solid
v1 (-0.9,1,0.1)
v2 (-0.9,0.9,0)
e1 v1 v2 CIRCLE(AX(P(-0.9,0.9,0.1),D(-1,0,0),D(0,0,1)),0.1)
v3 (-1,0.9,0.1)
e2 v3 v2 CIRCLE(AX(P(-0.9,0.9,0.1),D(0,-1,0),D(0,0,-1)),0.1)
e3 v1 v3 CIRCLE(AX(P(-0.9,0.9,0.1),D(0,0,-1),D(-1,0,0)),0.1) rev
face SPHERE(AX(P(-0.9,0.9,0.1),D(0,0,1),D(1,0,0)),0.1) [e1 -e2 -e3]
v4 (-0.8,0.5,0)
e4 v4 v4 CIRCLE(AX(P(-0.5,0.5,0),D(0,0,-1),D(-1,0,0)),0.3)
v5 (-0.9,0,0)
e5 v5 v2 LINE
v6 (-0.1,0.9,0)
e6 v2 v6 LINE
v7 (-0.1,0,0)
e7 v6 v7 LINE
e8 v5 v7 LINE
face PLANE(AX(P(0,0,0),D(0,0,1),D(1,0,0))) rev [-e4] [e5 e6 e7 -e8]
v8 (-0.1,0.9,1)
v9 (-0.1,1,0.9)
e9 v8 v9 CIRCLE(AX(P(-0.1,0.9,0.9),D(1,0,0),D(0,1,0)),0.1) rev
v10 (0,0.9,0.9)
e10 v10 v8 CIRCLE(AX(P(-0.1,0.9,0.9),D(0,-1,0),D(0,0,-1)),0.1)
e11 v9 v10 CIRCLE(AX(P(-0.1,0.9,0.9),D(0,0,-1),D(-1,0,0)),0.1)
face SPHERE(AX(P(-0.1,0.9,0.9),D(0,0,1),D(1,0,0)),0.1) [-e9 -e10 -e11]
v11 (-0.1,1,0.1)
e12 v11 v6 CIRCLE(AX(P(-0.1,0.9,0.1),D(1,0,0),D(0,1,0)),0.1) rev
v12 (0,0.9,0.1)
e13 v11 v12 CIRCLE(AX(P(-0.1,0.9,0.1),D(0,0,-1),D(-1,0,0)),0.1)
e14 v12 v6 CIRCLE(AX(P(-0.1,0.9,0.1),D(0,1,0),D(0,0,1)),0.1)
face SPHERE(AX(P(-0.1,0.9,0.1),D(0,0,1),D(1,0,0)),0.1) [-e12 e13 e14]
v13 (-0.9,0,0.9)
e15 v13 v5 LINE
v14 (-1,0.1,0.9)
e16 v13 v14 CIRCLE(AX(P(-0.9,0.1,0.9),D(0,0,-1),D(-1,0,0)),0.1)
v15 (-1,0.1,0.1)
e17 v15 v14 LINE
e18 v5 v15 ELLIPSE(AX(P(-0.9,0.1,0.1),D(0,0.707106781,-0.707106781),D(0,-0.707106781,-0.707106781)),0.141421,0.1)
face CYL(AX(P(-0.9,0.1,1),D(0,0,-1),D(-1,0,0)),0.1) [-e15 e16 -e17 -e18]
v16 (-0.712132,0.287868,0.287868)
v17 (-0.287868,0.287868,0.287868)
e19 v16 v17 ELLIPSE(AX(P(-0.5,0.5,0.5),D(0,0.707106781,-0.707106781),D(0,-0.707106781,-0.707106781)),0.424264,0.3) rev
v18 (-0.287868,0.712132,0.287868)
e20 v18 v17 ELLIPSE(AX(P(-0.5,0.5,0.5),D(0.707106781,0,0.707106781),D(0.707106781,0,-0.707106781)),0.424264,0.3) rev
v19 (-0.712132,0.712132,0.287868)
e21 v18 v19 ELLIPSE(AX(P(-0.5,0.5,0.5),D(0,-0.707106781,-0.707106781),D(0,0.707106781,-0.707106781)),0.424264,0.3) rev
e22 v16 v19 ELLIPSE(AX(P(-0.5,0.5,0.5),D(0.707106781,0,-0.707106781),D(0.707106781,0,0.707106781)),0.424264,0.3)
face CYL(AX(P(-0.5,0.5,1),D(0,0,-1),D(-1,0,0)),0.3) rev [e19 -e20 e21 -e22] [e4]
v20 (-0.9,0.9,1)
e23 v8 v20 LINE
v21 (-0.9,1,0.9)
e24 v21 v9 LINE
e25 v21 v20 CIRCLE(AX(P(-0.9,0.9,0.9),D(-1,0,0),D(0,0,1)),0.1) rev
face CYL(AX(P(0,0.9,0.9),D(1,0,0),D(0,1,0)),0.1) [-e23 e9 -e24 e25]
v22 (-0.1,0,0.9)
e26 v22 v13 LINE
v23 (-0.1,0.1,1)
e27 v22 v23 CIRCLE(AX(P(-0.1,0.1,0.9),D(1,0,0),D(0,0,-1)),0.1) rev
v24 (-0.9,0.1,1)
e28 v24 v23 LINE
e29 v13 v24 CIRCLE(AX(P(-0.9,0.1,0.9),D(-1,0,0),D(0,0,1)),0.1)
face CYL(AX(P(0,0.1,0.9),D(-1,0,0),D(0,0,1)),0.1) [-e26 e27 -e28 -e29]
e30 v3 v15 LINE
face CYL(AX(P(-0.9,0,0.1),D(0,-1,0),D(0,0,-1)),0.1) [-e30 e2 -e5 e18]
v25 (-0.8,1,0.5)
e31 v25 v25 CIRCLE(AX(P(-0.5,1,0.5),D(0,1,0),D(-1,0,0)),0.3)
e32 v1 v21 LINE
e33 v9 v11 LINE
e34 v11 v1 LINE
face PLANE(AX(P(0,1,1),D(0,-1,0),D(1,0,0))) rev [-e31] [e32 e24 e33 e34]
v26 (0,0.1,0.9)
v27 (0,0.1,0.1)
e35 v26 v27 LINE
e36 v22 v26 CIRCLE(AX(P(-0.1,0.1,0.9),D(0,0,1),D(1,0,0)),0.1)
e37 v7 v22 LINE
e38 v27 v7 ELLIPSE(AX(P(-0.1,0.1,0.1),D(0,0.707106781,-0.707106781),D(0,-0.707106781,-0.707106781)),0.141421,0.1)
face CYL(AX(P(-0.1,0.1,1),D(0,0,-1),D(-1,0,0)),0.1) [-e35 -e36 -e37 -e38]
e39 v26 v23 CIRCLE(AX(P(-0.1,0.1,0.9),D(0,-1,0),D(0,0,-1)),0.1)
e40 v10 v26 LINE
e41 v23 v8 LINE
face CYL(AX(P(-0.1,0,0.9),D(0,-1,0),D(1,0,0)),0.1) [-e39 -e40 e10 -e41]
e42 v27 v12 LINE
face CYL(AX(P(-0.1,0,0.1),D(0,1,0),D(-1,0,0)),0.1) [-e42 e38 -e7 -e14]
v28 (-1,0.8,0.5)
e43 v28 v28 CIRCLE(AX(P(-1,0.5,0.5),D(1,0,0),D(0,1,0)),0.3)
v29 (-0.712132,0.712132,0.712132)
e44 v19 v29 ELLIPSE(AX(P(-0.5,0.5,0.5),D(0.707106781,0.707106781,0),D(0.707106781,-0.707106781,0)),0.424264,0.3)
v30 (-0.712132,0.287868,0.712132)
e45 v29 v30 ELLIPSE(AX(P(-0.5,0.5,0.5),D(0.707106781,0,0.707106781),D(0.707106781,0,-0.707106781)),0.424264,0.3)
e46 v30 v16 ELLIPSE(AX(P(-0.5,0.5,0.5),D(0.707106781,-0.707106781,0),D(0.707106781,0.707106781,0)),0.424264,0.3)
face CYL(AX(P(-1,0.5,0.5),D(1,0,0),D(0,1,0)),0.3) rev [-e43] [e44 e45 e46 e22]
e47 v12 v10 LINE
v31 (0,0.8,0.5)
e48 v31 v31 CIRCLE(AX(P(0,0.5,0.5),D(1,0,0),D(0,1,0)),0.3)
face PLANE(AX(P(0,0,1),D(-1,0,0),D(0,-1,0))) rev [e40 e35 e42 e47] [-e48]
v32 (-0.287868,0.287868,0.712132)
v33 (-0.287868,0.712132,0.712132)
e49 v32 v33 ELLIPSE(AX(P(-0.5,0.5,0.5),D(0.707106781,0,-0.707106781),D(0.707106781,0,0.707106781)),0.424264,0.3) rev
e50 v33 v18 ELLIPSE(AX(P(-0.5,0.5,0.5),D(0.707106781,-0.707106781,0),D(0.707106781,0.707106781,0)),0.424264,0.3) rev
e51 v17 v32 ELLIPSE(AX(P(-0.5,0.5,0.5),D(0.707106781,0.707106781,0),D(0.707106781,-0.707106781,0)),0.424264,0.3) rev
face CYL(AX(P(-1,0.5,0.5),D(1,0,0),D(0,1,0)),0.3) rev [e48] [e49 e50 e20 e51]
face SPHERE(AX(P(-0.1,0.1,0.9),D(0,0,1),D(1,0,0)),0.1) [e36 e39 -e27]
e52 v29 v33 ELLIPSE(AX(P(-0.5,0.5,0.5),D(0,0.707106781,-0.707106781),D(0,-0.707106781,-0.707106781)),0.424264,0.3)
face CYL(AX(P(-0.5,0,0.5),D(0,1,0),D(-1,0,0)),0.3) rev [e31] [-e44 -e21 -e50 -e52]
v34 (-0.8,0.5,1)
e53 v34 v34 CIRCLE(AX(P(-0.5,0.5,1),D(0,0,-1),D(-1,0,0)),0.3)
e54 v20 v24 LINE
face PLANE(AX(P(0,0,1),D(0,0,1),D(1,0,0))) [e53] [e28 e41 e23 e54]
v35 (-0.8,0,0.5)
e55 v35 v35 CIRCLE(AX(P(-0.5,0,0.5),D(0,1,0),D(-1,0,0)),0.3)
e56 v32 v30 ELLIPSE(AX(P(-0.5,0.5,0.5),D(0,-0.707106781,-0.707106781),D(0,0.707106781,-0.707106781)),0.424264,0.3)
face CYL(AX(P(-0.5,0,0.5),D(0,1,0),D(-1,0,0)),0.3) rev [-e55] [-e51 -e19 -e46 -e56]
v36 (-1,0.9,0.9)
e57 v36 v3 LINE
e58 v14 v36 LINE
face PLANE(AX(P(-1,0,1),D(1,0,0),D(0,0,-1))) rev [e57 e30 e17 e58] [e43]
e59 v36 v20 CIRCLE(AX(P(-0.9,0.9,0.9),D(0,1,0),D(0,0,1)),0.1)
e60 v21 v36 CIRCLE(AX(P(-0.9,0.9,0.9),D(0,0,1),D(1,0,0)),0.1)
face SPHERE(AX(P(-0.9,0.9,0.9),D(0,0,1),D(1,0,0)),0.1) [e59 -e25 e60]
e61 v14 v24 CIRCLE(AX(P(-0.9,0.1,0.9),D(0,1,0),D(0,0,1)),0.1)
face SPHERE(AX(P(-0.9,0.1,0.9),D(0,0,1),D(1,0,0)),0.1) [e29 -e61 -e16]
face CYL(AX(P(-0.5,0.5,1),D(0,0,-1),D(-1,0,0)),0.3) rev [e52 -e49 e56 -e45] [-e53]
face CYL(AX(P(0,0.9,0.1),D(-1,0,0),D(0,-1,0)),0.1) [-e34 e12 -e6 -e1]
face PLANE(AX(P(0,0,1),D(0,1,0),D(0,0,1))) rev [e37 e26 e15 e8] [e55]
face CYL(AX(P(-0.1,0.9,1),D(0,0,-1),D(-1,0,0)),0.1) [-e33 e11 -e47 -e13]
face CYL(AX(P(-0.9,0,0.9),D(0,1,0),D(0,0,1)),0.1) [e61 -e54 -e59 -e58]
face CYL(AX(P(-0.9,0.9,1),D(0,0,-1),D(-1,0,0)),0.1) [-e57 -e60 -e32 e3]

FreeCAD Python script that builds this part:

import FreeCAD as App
import Part
import Sketcher

V = App.Vector


def edges_at(feature, points):
    """Names of the edges that pass closest to the given points."""
    edges = feature.Shape.Edges
    near = lambda p: min(range(len(edges)), key=lambda i: edges[i].distToShape(Part.Vertex(*p))[0])
    return sorted({f"Edge{near(p) + 1}" for p in points})

doc = App.newDocument("Part")
params = doc.addObject("Spreadsheet::Sheet", "Params")
for row, (alias, value) in enumerate([
    ("sketch1_width", "1 mm"),
    ("pad1_length", "1 mm"),
    ("sketch2_diameter", "0.6 mm"),
    ("pocket1_length", "1 mm"),
    ("sketch3_diameter", "0.6 mm"),
    ("pocket2_length", "1 mm"),
    ("sketch4_diameter", "0.6 mm"),
    ("pocket3_length", "1 mm"),
    ("fillet_radius", "0.1 mm"),
    ("fillet2_radius", "0.1 mm"),
], start=1):
    params.set(f"A{row}", alias)
    params.set(f"B{row}", "=" + value)
    params.setAlias(f"B{row}", alias)

body = doc.addObject("PartDesign::Body", "Body")

# Sketch on XY plane
sketch1 = body.newObject("Sketcher::SketchObject", "Sketch")
sketch1.AttachmentSupport = (doc.getObject("XY_Plane"), [""])
sketch1.MapMode = "FlatFace"
sketch1.addGeometry([
    Part.LineSegment(V(-1, 1, 0), V(-1, 0, 0)),
    Part.LineSegment(V(-1, 0, 0), V(0, 0, 0)),
    Part.LineSegment(V(0, 0, 0), V(0, 1, 0)),
    Part.LineSegment(V(0, 1, 0), V(-1, 1, 0)),
], False)
sketch1.addConstraint([
    Sketcher.Constraint("Coincident", 0, 2, 1, 1),
    Sketcher.Constraint("Coincident", 1, 2, 2, 1),
    Sketcher.Constraint("Coincident", 2, 2, 3, 1),
    Sketcher.Constraint("Coincident", 3, 2, 0, 1),
    Sketcher.Constraint("Vertical", 0),
    Sketcher.Constraint("Horizontal", 1),
    Sketcher.Constraint("Vertical", 2),
    Sketcher.Constraint("Horizontal", 3),
    Sketcher.Constraint("Coincident", 1, 2, -1, 1),
    Sketcher.Constraint("Equal", 3, 0),
    Sketcher.Constraint("DistanceX", 1, 1, 1, 2, 1.0),
])
sketch1.setExpression("Constraints[10]", "Params.sketch1_width")
pad1 = body.newObject("PartDesign::Pad", "Pad")
pad1.Profile = sketch1
pad1.setExpression("Length", "Params.pad1_length")

# Sketch on YZ plane
sketch2 = body.newObject("Sketcher::SketchObject", "Sketch001")
sketch2.AttachmentSupport = (doc.getObject("YZ_Plane"), [""])
sketch2.MapMode = "FlatFace"
sketch2.addGeometry(Part.Circle(V(0.5, 0.5, 0), V(0, 0, 1), 0.3), False)
sketch2.addConstraint([
    Sketcher.Constraint("Diameter", 0, 0.6),
    Sketcher.Constraint("DistanceX", -1, 1, 0, 3, 0.5),
    Sketcher.Constraint("DistanceY", -1, 1, 0, 3, 0.5),
])
sketch2.setExpression("Constraints[0]", "Params.sketch2_diameter")
pocket1 = body.newObject("PartDesign::Pocket", "Pocket")
pocket1.Profile = sketch2
pocket1.setExpression("Length", "Params.pocket1_length")

# Sketch on XY plane
sketch3 = body.newObject("Sketcher::SketchObject", "Sketch002")
sketch3.AttachmentSupport = (doc.getObject("XY_Plane"), [""])
sketch3.MapMode = "FlatFace"
sketch3.addGeometry(Part.Circle(V(-0.5, 0.5, 0), V(0, 0, 1), 0.3), False)
sketch3.addConstraint([
    Sketcher.Constraint("Diameter", 0, 0.6),
    Sketcher.Constraint("DistanceX", 0, 3, -1, 1, 0.5),
    Sketcher.Constraint("DistanceY", -1, 1, 0, 3, 0.5),
])
sketch3.setExpression("Constraints[0]", "Params.sketch3_diameter")
pocket2 = body.newObject("PartDesign::Pocket", "Pocket001")
pocket2.Profile = sketch3
pocket2.setExpression("Length", "Params.pocket2_length")
pocket2.Reversed = True

# Sketch on XZ plane
sketch4 = body.newObject("Sketcher::SketchObject", "Sketch003")
sketch4.AttachmentSupport = (doc.getObject("XZ_Plane"), [""])
sketch4.MapMode = "FlatFace"
sketch4.AttachmentOffset = App.Placement(V(0, 0, -1), App.Rotation())
sketch4.addGeometry(Part.Circle(V(-0.5, 0.5, 0), V(0, 0, 1), 0.3), False)
sketch4.addConstraint([
    Sketcher.Constraint("Diameter", 0, 0.6),
    Sketcher.Constraint("DistanceX", 0, 3, -1, 1, 0.5),
    Sketcher.Constraint("DistanceY", -1, 1, 0, 3, 0.5),
])
sketch4.setExpression("Constraints[0]", "Params.sketch4_diameter")
pocket3 = body.newObject("PartDesign::Pocket", "Pocket002")
pocket3.Profile = sketch4
pocket3.setExpression("Length", "Params.pocket3_length")
pocket3.Reversed = True
doc.recompute()

fillet = body.newObject("PartDesign::Fillet", "Fillet")
fillet.Base = (pocket3, edges_at(pocket3, [(-1, 0.5, 1), (-0.5, 1, 1), (-1, 1, 0.5)]))
fillet.setExpression("Radius", "Params.fillet_radius")
doc.recompute()

fillet2 = body.newObject("PartDesign::Fillet", "Fillet001")
fillet2.Base = (fillet, edges_at(fillet, [
    (0, 0.45, 1),
    (-0.45, 0, 1),
    (0, 1, 0.45),
    (0, 0.971, 0.971),
    (-1, 0, 0.45),
    (-0.971, 0, 0.971),
    (-1, 0.45, 0),
    (-0.971, 0.971, 0),
    (-0.45, 1, 0),
    (0, 0.5, 0),
    (0, 0, 0.5),
]))
fillet2.setExpression("Radius", "Params.fillet2_radius")

doc.recompute()
